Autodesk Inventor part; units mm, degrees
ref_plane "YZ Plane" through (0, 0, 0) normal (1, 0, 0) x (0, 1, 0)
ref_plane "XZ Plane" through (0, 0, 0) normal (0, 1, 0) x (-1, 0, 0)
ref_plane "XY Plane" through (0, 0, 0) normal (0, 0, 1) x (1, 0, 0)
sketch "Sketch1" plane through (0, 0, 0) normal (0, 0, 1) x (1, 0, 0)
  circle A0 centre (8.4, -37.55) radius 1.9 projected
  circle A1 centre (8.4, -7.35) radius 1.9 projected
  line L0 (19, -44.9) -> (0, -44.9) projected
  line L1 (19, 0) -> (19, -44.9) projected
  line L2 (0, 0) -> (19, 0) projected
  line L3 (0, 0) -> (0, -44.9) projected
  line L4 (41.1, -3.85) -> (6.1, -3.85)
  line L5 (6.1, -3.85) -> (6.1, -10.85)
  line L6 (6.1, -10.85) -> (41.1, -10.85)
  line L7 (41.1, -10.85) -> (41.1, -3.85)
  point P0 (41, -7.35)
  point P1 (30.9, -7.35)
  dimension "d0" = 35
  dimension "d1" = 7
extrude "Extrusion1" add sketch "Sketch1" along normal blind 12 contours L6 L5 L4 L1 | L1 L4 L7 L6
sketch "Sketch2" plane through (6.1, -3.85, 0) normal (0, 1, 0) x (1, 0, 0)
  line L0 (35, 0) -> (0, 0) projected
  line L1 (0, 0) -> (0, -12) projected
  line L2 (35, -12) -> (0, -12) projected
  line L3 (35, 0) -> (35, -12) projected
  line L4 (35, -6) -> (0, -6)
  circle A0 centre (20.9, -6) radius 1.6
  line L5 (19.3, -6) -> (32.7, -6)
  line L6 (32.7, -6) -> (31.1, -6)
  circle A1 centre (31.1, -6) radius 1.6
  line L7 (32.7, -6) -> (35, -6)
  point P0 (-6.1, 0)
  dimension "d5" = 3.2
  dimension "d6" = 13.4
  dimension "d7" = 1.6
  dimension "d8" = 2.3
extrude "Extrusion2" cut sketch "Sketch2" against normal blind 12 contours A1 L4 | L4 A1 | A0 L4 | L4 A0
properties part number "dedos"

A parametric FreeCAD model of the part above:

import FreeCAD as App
import Part
import Sketcher
from FreeCAD import Vector
Q = App.Units.Quantity

doc = App.newDocument("Part")
body = doc.addObject("PartDesign::Body", "Body")

# Sketch on XY plane
sketch1 = body.newObject("Sketcher::SketchObject", "Sketch")
sketch1.AttachmentSupport = (doc.getObject("XY_Plane"), [""])
sketch1.MapMode = "FlatFace"
sketch1.addGeometry(Part.LineSegment(Vector(6.1, -10.8, 0), Vector(41.1, -10.8, 0)), False)
sketch1.addGeometry(Part.LineSegment(Vector(41.1, -10.8, 0), Vector(41.1, -3.9, 0)), False)
sketch1.addGeometry(Part.LineSegment(Vector(41.1, -3.9, 0), Vector(6.1, -3.9, 0)), False)
sketch1.addGeometry(Part.LineSegment(Vector(6.1, -3.9, 0), Vector(6.1, -10.8, 0)), False)
sketch1.addGeometry(Part.Circle(Vector(8.4, -7.3, 0), Vector(0, 0, 1), 1.9), False)
sketch1.addConstraint(Sketcher.Constraint("Coincident", 0, 2, 1, 1))
sketch1.addConstraint(Sketcher.Constraint("Coincident", 1, 2, 2, 1))
sketch1.addConstraint(Sketcher.Constraint("Coincident", 2, 2, 3, 1))
sketch1.addConstraint(Sketcher.Constraint("Coincident", 3, 2, 0, 1))
sketch1.addConstraint(Sketcher.Constraint("Horizontal", 0))
sketch1.addConstraint(Sketcher.Constraint("Vertical", 1))
sketch1.addConstraint(Sketcher.Constraint("Horizontal", 2))
sketch1.addConstraint(Sketcher.Constraint("Vertical", 3))
sketch1.addConstraint(Sketcher.Constraint("DistanceX", 0, 1, 0, 2, Q("35 mm")))
sketch1.addConstraint(Sketcher.Constraint("DistanceY", 1, 1, 1, 2, Q("7 mm")))
sketch1.addConstraint(Sketcher.Constraint("Diameter", 4, Q("3.8 mm")))
sketch1.addConstraint(Sketcher.Constraint("DistanceX", -1, 1, 4, 3, Q("8.4 mm")))
sketch1.addConstraint(Sketcher.Constraint("DistanceX", -1, 1, 0, 2, Q("41.1 mm")))
sketch1.addConstraint(Sketcher.Constraint("DistanceY", 0, 2, 4, 3, Q("3.5 mm")))
sketch1.addConstraint(Sketcher.Constraint("DistanceY", 4, 3, -1, 1, Q("7.35 mm")))
pad1 = body.newObject("PartDesign::Pad", "Pad")
pad1.Profile = sketch1
pad1.Length = 12

# Sketch on XZ plane
sketch2 = body.newObject("Sketcher::SketchObject", "Sketch001")
sketch2.AttachmentSupport = (doc.getObject("XZ_Plane"), [""])
sketch2.MapMode = "FlatFace"
sketch2.AttachmentOffset = App.Placement(Vector(0, 0, 3.85), App.Rotation())
sketch2.addGeometry(Part.Circle(Vector(37.2, 6, 0), Vector(0, 0, 1), 1.6), False)
sketch2.addGeometry(Part.Circle(Vector(27, 6, 0), Vector(0, 0, 1), 1.6), False)
sketch2.addConstraint(Sketcher.Constraint("Equal", 0, 1))
sketch2.addConstraint(Sketcher.Constraint("Horizontal", 0, 3, 1, 3))
sketch2.addConstraint(Sketcher.Constraint("Diameter", 0, Q("3.2 mm")))
sketch2.addConstraint(Sketcher.Constraint("DistanceY", -1, 1, 0, 3, Q("6 mm")))
sketch2.addConstraint(Sketcher.Constraint("DistanceX", -1, 1, 1, 3, Q("27 mm")))
sketch2.addConstraint(Sketcher.Constraint("DistanceX", -1, 1, 0, 3, Q("37.2 mm")))
pocket1 = body.newObject("PartDesign::Pocket", "Pocket")
pocket1.Profile = sketch2
pocket1.Length = 12
pocket1.Reversed = True

doc.recompute()
